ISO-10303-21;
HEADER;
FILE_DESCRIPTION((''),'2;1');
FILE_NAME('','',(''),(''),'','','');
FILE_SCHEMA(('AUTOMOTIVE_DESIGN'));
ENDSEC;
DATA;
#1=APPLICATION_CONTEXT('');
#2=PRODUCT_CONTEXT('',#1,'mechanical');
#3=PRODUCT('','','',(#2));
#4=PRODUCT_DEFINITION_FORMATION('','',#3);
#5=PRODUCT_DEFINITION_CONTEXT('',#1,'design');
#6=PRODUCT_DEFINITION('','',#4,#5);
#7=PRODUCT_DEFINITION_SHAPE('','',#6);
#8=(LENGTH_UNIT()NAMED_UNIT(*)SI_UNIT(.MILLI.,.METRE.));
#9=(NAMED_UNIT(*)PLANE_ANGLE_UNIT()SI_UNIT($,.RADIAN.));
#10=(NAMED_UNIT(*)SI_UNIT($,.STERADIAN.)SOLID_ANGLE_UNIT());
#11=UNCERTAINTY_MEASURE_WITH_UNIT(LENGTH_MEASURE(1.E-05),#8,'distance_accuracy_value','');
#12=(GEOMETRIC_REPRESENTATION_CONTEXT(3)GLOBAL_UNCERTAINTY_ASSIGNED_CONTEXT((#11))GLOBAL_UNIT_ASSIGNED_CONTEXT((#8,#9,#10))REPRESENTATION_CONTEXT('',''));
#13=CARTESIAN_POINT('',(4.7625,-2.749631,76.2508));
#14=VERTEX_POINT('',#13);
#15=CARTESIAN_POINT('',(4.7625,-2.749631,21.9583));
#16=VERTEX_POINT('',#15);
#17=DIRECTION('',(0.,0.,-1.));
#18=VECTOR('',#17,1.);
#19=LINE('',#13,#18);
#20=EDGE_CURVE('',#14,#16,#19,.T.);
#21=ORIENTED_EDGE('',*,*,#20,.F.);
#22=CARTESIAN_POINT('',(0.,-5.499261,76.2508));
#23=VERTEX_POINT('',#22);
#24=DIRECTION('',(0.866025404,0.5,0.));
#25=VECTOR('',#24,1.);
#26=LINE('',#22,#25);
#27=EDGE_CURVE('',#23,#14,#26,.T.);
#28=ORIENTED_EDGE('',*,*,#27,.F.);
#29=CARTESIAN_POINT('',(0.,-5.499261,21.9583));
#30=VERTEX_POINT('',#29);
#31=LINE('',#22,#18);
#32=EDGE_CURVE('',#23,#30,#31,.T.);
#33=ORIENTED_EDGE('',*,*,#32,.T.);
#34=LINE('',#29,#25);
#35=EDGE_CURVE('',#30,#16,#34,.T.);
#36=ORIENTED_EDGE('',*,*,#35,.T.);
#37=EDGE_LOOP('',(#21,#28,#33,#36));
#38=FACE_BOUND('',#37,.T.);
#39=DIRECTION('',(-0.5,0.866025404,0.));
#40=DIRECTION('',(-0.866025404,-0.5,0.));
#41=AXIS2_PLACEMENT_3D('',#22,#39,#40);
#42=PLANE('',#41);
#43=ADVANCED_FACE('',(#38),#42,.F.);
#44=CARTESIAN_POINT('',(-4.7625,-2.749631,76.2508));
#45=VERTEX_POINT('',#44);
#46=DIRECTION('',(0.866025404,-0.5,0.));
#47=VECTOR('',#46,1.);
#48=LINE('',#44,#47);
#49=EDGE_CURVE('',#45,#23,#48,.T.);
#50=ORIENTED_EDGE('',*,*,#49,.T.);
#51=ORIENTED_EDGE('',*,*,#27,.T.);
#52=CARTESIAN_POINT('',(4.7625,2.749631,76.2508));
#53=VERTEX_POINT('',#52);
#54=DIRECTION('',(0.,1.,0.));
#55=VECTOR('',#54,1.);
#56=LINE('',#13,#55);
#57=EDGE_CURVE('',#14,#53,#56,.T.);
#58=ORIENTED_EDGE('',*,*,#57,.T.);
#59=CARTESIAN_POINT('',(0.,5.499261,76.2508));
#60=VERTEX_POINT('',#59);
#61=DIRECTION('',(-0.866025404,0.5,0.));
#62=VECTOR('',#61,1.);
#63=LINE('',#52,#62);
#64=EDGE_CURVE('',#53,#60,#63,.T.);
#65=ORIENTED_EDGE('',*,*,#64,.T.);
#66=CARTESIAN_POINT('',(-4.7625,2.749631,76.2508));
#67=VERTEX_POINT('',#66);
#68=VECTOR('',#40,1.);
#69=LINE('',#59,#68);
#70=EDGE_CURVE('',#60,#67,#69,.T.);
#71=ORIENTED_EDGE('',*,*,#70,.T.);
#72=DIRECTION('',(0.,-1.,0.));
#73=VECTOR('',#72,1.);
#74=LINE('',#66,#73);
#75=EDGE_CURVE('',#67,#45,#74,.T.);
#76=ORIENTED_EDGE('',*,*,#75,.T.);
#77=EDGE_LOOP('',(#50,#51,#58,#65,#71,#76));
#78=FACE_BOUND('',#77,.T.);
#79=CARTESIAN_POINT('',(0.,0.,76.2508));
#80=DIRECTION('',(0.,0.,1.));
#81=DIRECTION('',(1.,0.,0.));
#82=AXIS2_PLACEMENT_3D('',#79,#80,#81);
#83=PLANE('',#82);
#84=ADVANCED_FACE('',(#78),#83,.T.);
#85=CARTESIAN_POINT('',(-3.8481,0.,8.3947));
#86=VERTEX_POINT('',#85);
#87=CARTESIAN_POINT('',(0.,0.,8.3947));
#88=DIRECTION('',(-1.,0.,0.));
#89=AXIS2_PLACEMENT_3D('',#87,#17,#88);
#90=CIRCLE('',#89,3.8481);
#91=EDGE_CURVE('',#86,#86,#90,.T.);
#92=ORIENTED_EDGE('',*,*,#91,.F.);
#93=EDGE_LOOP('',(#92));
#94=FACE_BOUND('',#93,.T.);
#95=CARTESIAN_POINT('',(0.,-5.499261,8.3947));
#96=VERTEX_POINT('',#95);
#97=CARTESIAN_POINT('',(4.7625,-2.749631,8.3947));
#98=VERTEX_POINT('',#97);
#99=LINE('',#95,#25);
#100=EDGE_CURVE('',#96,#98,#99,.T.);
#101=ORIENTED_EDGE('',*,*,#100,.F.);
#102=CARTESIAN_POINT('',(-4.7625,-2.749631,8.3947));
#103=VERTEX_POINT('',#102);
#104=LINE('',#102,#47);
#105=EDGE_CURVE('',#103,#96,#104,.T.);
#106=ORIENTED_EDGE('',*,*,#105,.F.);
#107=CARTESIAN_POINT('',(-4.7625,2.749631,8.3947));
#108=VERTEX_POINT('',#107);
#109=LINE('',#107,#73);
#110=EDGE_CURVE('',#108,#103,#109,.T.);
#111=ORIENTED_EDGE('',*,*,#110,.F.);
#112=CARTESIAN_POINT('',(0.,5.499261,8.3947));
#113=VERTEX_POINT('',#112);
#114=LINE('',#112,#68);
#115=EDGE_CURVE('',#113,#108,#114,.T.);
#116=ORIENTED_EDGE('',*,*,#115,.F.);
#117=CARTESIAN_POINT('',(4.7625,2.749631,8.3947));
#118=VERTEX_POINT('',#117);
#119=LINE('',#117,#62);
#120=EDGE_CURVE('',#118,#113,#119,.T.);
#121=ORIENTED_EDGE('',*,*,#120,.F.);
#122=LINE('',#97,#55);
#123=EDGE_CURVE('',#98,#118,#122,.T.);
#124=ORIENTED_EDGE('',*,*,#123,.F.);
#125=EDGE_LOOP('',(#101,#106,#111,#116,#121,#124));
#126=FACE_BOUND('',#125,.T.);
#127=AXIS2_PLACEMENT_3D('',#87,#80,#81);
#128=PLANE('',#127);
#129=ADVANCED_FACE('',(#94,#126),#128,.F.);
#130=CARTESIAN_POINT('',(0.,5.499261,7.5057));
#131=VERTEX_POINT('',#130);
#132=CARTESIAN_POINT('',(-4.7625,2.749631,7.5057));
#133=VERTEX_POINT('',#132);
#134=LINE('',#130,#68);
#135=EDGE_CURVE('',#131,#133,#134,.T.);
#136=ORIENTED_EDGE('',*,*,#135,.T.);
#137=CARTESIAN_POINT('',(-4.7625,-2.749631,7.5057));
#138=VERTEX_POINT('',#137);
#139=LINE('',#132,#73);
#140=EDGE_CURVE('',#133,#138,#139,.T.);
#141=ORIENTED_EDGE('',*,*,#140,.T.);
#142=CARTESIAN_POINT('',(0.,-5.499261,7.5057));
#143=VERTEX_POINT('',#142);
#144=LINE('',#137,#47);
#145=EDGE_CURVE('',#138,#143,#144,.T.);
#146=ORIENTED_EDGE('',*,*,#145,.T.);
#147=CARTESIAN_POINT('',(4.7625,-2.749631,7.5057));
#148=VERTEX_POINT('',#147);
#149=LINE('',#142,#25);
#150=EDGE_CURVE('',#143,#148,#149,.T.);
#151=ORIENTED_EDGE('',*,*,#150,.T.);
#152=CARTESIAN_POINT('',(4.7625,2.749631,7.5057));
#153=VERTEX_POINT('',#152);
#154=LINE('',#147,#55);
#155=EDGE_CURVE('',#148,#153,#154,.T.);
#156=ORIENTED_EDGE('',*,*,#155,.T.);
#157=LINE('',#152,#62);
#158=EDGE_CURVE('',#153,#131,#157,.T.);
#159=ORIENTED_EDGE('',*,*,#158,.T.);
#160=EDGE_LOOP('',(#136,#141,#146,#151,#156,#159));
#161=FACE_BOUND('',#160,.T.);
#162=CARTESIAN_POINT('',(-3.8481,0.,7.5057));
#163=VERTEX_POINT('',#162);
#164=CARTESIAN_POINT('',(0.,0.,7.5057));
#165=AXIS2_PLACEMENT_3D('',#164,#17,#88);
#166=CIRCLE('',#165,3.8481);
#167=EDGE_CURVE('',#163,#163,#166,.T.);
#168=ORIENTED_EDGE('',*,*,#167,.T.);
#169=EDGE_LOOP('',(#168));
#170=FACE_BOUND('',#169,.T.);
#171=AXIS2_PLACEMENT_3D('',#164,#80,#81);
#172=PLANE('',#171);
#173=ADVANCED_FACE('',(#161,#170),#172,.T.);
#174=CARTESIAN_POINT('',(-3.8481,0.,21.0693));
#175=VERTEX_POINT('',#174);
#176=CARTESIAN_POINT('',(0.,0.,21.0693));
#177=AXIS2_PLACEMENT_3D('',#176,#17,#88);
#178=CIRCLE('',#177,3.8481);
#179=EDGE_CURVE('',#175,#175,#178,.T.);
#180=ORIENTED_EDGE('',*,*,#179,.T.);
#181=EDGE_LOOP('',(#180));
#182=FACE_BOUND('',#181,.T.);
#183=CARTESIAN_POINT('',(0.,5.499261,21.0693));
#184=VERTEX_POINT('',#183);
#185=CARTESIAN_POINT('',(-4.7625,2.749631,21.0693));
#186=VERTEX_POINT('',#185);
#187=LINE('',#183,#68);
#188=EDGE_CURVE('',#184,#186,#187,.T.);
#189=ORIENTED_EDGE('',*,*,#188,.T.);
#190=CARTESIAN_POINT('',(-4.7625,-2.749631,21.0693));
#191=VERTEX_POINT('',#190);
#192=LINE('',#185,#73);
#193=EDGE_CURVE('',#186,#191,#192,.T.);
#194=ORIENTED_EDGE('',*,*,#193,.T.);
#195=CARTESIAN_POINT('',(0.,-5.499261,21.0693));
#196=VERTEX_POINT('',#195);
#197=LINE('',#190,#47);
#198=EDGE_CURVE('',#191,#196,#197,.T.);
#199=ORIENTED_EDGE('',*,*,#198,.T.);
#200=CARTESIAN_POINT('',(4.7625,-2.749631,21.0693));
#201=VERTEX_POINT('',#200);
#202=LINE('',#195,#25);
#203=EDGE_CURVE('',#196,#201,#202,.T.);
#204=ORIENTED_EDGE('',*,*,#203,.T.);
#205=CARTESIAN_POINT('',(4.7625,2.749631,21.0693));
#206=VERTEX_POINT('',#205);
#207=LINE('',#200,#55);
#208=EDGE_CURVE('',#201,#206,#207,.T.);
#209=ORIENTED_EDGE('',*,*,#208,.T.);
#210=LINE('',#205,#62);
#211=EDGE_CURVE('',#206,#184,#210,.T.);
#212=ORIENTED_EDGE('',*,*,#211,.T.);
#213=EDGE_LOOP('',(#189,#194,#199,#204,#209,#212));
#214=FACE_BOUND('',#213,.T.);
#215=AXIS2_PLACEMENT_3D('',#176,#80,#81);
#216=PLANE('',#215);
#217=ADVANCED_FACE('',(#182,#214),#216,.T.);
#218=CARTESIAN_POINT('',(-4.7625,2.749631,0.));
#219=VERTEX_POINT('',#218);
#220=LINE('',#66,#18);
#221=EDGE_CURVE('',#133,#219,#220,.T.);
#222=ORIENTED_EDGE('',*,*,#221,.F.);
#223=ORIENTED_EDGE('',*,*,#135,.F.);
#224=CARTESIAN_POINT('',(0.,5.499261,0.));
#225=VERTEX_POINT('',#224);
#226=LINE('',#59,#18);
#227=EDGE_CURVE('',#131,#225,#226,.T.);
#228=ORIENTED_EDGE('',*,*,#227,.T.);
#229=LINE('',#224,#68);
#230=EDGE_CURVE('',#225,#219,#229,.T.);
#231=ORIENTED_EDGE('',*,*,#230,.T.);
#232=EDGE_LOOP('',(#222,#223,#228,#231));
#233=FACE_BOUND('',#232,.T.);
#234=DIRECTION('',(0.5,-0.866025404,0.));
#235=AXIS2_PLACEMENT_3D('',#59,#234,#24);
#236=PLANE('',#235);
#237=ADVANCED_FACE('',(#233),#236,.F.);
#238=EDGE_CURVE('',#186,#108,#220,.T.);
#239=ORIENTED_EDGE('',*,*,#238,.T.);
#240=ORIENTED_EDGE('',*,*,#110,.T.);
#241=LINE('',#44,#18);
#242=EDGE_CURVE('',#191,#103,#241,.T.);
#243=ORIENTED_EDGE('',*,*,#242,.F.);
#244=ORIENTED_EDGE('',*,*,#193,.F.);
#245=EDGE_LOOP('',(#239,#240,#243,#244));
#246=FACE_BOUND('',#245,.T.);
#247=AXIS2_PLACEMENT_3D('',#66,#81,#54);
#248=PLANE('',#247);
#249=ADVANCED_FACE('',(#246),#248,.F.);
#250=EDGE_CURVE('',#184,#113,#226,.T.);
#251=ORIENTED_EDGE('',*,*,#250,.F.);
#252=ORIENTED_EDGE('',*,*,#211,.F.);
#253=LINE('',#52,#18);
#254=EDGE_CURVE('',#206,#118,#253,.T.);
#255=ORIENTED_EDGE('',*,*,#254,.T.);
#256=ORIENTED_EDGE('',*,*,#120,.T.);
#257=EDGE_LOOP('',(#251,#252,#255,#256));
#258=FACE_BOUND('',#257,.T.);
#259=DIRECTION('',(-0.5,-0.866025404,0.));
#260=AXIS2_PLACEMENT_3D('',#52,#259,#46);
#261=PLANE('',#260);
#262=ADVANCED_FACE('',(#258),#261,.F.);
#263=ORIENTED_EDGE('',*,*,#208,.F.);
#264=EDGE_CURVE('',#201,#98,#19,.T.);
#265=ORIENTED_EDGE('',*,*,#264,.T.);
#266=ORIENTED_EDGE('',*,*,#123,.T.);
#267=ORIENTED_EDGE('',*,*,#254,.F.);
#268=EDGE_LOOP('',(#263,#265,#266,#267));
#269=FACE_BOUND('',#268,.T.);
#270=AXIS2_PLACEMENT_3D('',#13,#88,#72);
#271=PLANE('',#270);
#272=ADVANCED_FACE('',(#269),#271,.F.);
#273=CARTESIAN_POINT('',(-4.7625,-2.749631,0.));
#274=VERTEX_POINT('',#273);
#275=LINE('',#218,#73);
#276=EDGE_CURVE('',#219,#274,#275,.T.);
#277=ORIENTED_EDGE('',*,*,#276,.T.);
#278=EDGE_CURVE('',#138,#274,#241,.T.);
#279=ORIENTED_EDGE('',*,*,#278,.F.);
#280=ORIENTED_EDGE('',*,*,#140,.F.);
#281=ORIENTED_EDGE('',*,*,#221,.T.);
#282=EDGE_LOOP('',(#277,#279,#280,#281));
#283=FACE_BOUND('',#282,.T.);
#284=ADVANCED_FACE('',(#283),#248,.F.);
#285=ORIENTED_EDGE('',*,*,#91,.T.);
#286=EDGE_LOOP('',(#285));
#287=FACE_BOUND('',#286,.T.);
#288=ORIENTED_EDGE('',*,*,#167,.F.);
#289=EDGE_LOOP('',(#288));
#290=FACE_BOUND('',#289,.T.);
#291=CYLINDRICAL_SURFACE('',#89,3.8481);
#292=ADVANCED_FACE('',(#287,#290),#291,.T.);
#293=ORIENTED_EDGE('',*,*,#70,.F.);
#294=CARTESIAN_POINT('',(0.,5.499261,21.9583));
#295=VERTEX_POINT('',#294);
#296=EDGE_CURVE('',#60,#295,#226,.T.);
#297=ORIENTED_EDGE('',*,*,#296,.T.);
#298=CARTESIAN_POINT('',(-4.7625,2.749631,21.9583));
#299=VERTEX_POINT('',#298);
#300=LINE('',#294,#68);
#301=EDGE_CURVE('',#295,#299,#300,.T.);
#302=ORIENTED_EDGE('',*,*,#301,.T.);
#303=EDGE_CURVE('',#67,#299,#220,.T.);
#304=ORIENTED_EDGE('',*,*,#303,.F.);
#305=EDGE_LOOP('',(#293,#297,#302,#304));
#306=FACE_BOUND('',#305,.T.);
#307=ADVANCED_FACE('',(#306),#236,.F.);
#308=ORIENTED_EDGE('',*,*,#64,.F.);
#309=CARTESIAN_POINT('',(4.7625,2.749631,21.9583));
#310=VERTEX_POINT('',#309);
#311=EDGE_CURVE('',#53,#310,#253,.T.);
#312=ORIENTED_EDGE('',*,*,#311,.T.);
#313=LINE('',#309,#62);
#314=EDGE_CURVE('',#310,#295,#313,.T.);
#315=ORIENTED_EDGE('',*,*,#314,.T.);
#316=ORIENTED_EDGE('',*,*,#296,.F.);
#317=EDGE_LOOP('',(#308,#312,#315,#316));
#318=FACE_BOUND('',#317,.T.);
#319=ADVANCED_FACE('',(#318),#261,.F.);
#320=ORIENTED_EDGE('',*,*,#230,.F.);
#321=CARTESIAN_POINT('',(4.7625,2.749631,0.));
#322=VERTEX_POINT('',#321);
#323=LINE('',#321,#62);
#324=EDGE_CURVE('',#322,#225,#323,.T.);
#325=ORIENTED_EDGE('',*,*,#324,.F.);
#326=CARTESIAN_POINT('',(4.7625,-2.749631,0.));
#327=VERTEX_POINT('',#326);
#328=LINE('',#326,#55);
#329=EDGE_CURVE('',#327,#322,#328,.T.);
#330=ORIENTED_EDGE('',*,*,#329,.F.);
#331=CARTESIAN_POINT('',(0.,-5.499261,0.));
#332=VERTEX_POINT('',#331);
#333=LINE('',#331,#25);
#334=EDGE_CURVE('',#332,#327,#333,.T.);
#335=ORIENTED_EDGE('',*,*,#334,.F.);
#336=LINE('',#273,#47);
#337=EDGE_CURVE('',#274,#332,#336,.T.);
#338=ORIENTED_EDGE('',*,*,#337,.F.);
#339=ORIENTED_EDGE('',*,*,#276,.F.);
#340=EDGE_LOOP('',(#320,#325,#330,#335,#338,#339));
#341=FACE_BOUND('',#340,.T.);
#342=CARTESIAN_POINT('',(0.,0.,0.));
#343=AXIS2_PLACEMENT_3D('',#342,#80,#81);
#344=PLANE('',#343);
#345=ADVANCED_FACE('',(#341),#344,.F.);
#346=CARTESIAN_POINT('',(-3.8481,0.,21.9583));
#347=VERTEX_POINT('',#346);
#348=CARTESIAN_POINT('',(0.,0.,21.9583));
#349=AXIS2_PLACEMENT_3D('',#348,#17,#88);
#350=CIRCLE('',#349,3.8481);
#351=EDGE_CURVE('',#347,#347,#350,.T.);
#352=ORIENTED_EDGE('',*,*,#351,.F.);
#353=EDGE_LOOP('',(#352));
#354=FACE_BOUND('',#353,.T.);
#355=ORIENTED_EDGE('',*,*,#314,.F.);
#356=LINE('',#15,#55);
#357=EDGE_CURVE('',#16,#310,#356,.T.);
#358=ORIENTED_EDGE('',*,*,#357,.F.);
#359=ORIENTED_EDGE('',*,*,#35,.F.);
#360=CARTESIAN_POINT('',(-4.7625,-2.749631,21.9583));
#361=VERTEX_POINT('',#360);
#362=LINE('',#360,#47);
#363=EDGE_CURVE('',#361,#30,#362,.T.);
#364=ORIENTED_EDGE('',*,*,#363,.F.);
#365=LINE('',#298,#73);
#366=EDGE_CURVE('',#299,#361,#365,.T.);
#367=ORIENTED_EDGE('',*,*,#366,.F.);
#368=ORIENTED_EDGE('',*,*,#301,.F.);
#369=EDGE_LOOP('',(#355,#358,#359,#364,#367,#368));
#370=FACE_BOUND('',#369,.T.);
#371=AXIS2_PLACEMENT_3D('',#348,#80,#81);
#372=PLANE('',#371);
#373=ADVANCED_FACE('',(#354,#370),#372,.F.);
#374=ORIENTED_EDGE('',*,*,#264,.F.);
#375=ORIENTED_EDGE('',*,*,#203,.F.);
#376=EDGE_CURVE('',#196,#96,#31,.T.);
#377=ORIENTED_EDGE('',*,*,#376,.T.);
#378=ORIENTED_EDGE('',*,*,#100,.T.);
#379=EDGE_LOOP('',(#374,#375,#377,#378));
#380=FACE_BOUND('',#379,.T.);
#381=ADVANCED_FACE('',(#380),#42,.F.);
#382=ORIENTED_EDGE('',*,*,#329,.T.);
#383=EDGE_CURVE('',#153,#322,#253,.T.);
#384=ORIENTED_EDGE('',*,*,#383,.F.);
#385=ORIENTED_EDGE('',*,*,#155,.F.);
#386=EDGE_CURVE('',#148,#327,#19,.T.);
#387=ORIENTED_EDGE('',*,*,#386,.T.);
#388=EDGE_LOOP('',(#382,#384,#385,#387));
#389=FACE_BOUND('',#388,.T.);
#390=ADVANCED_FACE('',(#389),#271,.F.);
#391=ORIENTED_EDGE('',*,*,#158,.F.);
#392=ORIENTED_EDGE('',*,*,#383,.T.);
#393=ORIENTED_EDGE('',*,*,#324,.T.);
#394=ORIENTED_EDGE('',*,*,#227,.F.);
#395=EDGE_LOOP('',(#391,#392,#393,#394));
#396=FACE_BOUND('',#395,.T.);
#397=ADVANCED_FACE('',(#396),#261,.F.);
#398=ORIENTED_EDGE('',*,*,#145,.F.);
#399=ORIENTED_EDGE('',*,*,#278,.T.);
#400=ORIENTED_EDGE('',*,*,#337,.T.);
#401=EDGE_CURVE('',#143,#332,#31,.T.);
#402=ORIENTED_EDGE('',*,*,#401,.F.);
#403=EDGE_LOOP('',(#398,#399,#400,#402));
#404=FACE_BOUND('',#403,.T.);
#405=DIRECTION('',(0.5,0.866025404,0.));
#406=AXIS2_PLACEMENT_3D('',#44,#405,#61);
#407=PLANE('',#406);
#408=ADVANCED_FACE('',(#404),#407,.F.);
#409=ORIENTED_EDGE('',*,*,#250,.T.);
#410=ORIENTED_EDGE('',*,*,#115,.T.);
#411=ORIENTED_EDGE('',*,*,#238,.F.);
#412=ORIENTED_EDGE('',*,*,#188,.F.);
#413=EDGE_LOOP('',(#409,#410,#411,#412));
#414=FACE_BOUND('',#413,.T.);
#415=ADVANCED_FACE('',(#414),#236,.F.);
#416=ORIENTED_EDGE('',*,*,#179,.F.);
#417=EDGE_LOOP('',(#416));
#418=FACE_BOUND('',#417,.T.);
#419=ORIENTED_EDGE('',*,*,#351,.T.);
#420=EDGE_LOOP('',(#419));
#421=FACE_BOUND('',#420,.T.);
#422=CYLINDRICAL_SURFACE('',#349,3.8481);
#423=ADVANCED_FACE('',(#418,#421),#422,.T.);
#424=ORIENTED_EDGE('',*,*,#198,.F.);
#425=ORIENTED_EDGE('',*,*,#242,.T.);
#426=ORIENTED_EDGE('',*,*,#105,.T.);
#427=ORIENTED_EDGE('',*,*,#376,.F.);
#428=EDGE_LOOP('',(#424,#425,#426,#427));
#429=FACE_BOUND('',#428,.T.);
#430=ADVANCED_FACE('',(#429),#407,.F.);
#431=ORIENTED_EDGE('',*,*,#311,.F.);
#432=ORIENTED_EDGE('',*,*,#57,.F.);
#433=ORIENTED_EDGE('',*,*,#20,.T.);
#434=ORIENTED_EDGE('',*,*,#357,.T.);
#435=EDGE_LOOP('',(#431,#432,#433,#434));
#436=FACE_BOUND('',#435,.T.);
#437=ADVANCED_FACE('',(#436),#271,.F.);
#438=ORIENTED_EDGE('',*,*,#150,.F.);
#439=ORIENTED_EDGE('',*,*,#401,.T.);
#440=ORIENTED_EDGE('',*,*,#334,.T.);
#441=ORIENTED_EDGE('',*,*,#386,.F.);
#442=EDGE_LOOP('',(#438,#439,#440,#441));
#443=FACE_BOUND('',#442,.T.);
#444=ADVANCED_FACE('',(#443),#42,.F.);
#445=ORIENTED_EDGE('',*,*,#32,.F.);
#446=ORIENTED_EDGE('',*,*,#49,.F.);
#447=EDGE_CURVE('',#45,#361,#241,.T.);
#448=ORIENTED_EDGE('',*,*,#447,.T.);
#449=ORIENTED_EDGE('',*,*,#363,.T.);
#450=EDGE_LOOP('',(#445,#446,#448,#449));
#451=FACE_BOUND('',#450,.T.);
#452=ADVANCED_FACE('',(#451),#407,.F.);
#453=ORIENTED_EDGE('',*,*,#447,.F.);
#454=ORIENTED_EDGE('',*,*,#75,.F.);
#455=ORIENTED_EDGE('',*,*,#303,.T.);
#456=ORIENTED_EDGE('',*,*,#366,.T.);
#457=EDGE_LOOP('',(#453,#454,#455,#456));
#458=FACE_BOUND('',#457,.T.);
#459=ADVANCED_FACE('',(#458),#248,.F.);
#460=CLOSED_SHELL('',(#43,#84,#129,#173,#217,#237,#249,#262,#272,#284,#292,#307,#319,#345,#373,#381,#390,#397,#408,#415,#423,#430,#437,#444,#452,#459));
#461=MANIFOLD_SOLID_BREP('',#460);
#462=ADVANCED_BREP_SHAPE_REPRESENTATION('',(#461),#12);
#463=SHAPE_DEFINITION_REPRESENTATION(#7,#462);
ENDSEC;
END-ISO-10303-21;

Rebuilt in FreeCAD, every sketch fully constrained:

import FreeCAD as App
import Part
import Sketcher
Q = App.Units.Quantity


def add_polygon(sketch, points):
    """Adds a closed chain of lines whose ends are joined by coincident constraints."""
    first, n = sketch.GeometryCount, len(points)
    for a, b in zip(points, points[1:] + points[:1]):
        sketch.addGeometry(Part.LineSegment(App.Vector(*a, 0), App.Vector(*b, 0)), False)
    for i in range(n):
        sketch.addConstraint(Sketcher.Constraint("Coincident", first + i, 2, first + (i + 1) % n, 1))

doc = App.newDocument("Part")
params = doc.addObject("Spreadsheet::Sheet", "Params")
for row, (alias, value) in enumerate([
    ("pad1_length", "3.002 in"),
    ("sketch2_diameter", "0.303 in"),
    ("pocket1_length", "0.035 in"),
    ("sketch3_diameter", "0.303 in"),
    ("pocket2_length", "0.035 in"),
], start=1):
    params.set(f"A{row}", alias)
    params.set(f"B{row}", "=" + value)
    params.setAlias(f"B{row}", alias)

body = doc.addObject("PartDesign::Body", "Body")

sketch1 = body.newObject("Sketcher::SketchObject", "Sketch")
sketch1.AttachmentSupport = (doc.getObject("XY_Plane"), [""])
sketch1.MapMode = "FlatFace"
add_polygon(sketch1, [(0, 5), (-5, 3), (-5, -3), (0, -5), (5, -3), (5, 3)])
sketch1.addConstraint(Sketcher.Constraint("Vertical", 1))
sketch1.addConstraint(Sketcher.Constraint("Vertical", 4))
sketch1.addConstraint(Sketcher.Constraint("Symmetric", 0, 2, 3, 2, -1, 1))
sketch1.addConstraint(Sketcher.Constraint("Symmetric", 2, 2, 5, 2, -1, 1))
sketch1.addConstraint(Sketcher.Constraint("PointOnObject", 2, 2, -2))
sketch1.addConstraint(Sketcher.Constraint("Parallel", 2, 5))
sketch1.addConstraint(Sketcher.Constraint("Horizontal", 1, 2, 3, 2))
sketch1.addConstraint(Sketcher.Constraint("Angle", 0, Q("-150 deg")))
sketch1.addConstraint(Sketcher.Constraint("DistanceX", 0, 2, -1, 1, Q("0.1875 in")))
sketch1.addConstraint(Sketcher.Constraint("DistanceY", 1, 2, 1, 1, 5.499261))
pad1 = body.newObject("PartDesign::Pad", "Pad")
pad1.Profile = sketch1
pad1.setExpression("Length", "Params.pad1_length")

sketch2 = body.newObject("Sketcher::SketchObject", "Sketch001")
sketch2.AttachmentSupport = (doc.getObject("XY_Plane"), [""])
sketch2.MapMode = "FlatFace"
sketch2.AttachmentOffset = App.Placement(App.Vector(0, 0, 0.847 * 25.4), App.Rotation())
add_polygon(sketch2, [(5.9, 6), (5.9, -6.2), (-5.2, -6.2), (-5.2, 6)])
sketch2.addGeometry(Part.Circle(App.Vector(0, 0, 0), App.Vector(0, 0, 1), 3.8), False)
sketch2.addConstraint(Sketcher.Constraint("Vertical", 0))
sketch2.addConstraint(Sketcher.Constraint("Horizontal", 1))
sketch2.addConstraint(Sketcher.Constraint("Vertical", 2))
sketch2.addConstraint(Sketcher.Constraint("Horizontal", 3))
sketch2.addConstraint(Sketcher.Constraint("Coincident", 4, 3, -1, 1))
sketch2.addConstraint(Sketcher.Constraint("Diameter", 4, Q("0.303 in")))
sketch2.addConstraint(Sketcher.Constraint("DistanceX", 1, 2, -1, 1, 5.173499))
sketch2.addConstraint(Sketcher.Constraint("DistanceX", 1, 2, 1, 1, 11.103452))
sketch2.addConstraint(Sketcher.Constraint("DistanceY", 0, 2, 0, 1, 12.145052))
sketch2.addConstraint(Sketcher.Constraint("DistanceY", 0, 2, -1, 1, 6.166928))
sketch2.setExpression("Constraints[9]", "Params.sketch2_diameter")
pocket1 = body.newObject("PartDesign::Pocket", "Pocket")
pocket1.Profile = sketch2
pocket1.setExpression("Length", "Params.pocket1_length")
pocket1.Midplane = True

sketch3 = body.newObject("Sketcher::SketchObject", "Sketch002")
sketch3.AttachmentSupport = (doc.getObject("XY_Plane"), [""])
sketch3.MapMode = "FlatFace"
sketch3.AttachmentOffset = App.Placement(App.Vector(0, 0, 0.313 * 25.4), App.Rotation())
add_polygon(sketch3, [(5.6, 5.6), (5.6, -5.9), (-5.1, -5.9), (-5.1, 5.6)])
sketch3.addGeometry(Part.Circle(App.Vector(0, 0, 0), App.Vector(0, 0, 1), 3.8), False)
sketch3.addConstraint(Sketcher.Constraint("Vertical", 0))
sketch3.addConstraint(Sketcher.Constraint("Horizontal", 1))
sketch3.addConstraint(Sketcher.Constraint("Vertical", 2))
sketch3.addConstraint(Sketcher.Constraint("Horizontal", 3))
sketch3.addConstraint(Sketcher.Constraint("Coincident", 4, 3, -1, 1))
sketch3.addConstraint(Sketcher.Constraint("Diameter", 4, Q("0.303 in")))
sketch3.addConstraint(Sketcher.Constraint("DistanceX", 1, 2, 1, 1, 10.752069))
sketch3.addConstraint(Sketcher.Constraint("DistanceY", 0, 2, 0, 1, 11.509711))
sketch3.addConstraint(Sketcher.Constraint("DistanceX", -1, 1, 0, 2, 5.642015))
sketch3.addConstraint(Sketcher.Constraint("DistanceY", 0, 2, -1, 1, 5.940236))
sketch3.setExpression("Constraints[9]", "Params.sketch3_diameter")
pocket2 = body.newObject("PartDesign::Pocket", "Pocket001")
pocket2.Profile = sketch3
pocket2.setExpression("Length", "Params.pocket2_length")
pocket2.Midplane = True

doc.recompute()
